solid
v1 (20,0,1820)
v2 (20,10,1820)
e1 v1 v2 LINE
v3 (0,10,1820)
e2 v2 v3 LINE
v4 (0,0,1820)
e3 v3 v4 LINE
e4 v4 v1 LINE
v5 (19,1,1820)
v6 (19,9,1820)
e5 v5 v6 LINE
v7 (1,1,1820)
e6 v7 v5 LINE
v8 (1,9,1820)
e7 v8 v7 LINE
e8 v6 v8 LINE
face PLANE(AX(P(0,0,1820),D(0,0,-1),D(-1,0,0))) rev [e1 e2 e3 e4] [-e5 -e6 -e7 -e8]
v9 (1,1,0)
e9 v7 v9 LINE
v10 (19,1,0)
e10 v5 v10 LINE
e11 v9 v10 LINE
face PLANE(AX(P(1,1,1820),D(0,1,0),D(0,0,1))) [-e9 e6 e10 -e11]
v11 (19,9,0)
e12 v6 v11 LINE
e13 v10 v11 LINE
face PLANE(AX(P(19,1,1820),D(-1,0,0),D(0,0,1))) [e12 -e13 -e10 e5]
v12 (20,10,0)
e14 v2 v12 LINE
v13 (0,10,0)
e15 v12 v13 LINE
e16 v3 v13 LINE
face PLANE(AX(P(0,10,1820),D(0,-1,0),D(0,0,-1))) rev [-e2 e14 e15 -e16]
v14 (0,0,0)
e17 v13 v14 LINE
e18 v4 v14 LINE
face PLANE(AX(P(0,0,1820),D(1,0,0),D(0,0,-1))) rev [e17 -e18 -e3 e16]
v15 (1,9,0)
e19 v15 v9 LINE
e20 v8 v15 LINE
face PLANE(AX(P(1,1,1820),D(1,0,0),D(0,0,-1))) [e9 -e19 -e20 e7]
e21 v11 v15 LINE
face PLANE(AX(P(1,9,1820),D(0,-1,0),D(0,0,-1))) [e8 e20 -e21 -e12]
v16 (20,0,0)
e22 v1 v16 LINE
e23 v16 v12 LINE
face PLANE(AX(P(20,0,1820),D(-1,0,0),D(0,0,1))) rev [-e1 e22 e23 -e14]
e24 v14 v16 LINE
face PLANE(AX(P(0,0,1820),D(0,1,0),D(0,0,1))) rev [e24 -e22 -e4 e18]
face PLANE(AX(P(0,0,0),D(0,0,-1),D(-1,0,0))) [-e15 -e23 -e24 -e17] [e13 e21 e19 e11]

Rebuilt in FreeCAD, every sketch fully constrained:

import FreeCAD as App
import Part
import Sketcher

V = App.Vector

doc = App.newDocument("Part")
body = doc.addObject("PartDesign::Body", "Body")

# Sketch on XY plane
sketch1 = doc.addObject("Sketcher::SketchObject", "Sketch")
body.addObject(sketch1)
sketch1.AttachmentSupport = (doc.XY_Plane, [""])
sketch1.MapMode = "FlatFace"
sketch1.addGeometry([
    Part.LineSegment(V(0, 10, 0), V(0, 0, 0)),  # 0
    Part.LineSegment(V(0, 0, 0), V(20, 0, 0)),  # 1
    Part.LineSegment(V(20, 0, 0), V(20, 10, 0)),  # 2
    Part.LineSegment(V(20, 10, 0), V(0, 10, 0)),  # 3
    Part.LineSegment(V(19, 1, 0), V(1, 1, 0)),  # 4
    Part.LineSegment(V(1, 1, 0), V(1, 9, 0)),  # 5
    Part.LineSegment(V(1, 9, 0), V(19, 9, 0)),  # 6
    Part.LineSegment(V(19, 9, 0), V(19, 1, 0)),  # 7
], False)
sketch1.addConstraint([
    Sketcher.Constraint("Coincident", 0, 2, 1, 1),
    Sketcher.Constraint("Coincident", 1, 2, 2, 1),
    Sketcher.Constraint("Coincident", 2, 2, 3, 1),
    Sketcher.Constraint("Coincident", 3, 2, 0, 1),
    Sketcher.Constraint("Coincident", 4, 2, 5, 1),
    Sketcher.Constraint("Coincident", 5, 2, 6, 1),
    Sketcher.Constraint("Coincident", 6, 2, 7, 1),
    Sketcher.Constraint("Coincident", 7, 2, 4, 1),
    Sketcher.Constraint("Vertical", 0),
    Sketcher.Constraint("Horizontal", 1),
    Sketcher.Constraint("Vertical", 2),
    Sketcher.Constraint("Horizontal", 3),
    Sketcher.Constraint("Horizontal", 4),
    Sketcher.Constraint("Vertical", 5),
    Sketcher.Constraint("Horizontal", 6),
    Sketcher.Constraint("Vertical", 7),
    Sketcher.Constraint("Coincident", 0, 2, -1, 1),
    Sketcher.Constraint("DistanceX", 1, 1, 1, 2, 20.0),
    Sketcher.Constraint("DistanceX", 4, 2, 4, 1, 18.0),
    Sketcher.Constraint("DistanceY", 0, 2, 0, 1, 10.0),
    Sketcher.Constraint("DistanceY", 5, 1, 5, 2, 8.0),
    Sketcher.Constraint("DistanceX", -1, 1, 4, 2, 1.0),
    Sketcher.Constraint("DistanceY", -1, 1, 4, 2, 1.0),
])
pad1 = doc.addObject("PartDesign::Pad", "Pad")
body.addObject(pad1)
pad1.Profile = sketch1
pad1.Length = 1820

doc.recompute()
